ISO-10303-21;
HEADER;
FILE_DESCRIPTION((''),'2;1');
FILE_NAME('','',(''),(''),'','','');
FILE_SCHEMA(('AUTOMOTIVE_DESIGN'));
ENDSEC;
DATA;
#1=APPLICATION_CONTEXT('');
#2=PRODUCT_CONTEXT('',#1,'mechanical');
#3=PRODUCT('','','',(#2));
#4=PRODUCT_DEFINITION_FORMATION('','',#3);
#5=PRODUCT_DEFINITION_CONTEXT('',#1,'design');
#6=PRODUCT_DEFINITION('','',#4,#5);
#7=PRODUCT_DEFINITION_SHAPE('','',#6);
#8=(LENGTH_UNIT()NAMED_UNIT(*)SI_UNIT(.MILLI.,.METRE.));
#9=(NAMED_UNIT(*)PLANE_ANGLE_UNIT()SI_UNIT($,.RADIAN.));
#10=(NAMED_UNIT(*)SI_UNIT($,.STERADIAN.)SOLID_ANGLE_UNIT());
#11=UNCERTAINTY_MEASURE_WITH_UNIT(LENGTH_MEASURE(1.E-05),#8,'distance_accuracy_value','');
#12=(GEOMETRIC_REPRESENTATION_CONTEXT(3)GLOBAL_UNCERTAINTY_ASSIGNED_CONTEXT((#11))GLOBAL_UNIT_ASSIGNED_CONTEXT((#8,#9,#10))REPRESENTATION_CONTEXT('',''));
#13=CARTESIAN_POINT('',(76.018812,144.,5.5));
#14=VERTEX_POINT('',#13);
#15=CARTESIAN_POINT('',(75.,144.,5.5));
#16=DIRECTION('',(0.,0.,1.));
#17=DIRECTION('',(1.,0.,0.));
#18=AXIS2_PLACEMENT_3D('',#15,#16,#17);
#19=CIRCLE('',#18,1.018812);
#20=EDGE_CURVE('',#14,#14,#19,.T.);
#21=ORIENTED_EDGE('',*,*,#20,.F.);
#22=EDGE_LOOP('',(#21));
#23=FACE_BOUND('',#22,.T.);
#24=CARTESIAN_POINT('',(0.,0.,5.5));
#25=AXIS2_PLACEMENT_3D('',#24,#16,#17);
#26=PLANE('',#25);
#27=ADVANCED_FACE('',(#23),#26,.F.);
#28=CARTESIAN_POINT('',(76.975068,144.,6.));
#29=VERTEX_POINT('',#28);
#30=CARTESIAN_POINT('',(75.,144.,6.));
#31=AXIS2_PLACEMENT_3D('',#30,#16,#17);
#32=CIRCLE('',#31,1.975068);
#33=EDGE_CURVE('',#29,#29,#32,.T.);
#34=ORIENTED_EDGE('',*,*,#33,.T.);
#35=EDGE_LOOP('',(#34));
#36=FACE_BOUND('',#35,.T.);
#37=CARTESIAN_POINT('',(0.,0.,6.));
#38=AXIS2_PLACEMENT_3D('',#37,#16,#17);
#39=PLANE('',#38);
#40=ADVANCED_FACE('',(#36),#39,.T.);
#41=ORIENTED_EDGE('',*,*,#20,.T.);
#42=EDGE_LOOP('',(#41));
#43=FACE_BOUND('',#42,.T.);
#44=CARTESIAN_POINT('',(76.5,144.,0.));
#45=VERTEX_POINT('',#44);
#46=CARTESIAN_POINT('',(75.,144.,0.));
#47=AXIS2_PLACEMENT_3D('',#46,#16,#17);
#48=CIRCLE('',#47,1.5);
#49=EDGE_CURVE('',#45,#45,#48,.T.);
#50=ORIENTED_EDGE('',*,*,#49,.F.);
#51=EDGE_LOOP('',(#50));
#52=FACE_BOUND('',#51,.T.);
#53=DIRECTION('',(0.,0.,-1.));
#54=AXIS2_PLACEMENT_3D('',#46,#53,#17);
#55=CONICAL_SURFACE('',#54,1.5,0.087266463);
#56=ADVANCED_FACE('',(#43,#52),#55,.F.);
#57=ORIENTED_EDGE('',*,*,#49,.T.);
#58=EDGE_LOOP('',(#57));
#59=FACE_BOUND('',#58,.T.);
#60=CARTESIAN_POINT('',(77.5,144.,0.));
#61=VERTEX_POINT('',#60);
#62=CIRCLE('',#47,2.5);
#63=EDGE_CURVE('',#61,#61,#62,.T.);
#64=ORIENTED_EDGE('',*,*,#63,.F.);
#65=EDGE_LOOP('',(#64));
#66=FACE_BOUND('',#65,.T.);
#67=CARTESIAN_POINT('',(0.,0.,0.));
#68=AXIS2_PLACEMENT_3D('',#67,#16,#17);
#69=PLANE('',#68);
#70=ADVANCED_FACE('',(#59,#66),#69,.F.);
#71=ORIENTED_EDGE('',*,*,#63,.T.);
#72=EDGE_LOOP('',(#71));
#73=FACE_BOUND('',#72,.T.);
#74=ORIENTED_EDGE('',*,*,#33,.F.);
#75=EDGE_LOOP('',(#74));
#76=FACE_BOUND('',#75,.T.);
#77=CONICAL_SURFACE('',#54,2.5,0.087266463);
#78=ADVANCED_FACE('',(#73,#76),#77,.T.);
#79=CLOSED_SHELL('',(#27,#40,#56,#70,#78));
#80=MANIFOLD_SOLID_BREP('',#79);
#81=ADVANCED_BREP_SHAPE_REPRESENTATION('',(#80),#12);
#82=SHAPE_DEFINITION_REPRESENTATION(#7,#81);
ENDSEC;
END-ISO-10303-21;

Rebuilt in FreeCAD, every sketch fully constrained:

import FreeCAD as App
import Part
import Sketcher

doc = App.newDocument("Part")
body = doc.addObject("PartDesign::Body", "Body")

# Sketch on XY plane
sketch1 = body.newObject("Sketcher::SketchObject", "Sketch")
sketch1.AttachmentSupport = (doc.getObject("XY_Plane"), [""])
sketch1.MapMode = "FlatFace"
sketch1.addGeometry(Part.Circle(App.Vector(75, 144, 0), App.Vector(0, 0, 1), 2.5), False)
sketch1.addConstraint([
    Sketcher.Constraint("Diameter", 0, 5.0),
    Sketcher.Constraint("DistanceX", -1, 1, 0, 3, 75.0),
    Sketcher.Constraint("DistanceY", -1, 1, 0, 3, 144.0),
])
pad1 = body.newObject("PartDesign::Pad", "Pad")
pad1.Profile = sketch1
pad1.Length = 6
pad1.TaperAngle = -5

# Sketch on XY plane
sketch2 = body.newObject("Sketcher::SketchObject", "Sketch001")
sketch2.AttachmentSupport = (doc.getObject("XY_Plane"), [""])
sketch2.MapMode = "FlatFace"
sketch2.addGeometry(Part.Circle(App.Vector(75, 144, 0), App.Vector(0, 0, 1), 1.5), False)
sketch2.addConstraint([
    Sketcher.Constraint("Diameter", 0, 3.0),
    Sketcher.Constraint("DistanceX", -1, 1, 0, 3, 75.0),
    Sketcher.Constraint("DistanceY", -1, 1, 0, 3, 144.0),
])
pocket1 = body.newObject("PartDesign::Pocket", "Pocket")
pocket1.Profile = sketch2
pocket1.Length = 5.5
pocket1.Reversed = True
pocket1.TaperAngle = -5

doc.recompute()
